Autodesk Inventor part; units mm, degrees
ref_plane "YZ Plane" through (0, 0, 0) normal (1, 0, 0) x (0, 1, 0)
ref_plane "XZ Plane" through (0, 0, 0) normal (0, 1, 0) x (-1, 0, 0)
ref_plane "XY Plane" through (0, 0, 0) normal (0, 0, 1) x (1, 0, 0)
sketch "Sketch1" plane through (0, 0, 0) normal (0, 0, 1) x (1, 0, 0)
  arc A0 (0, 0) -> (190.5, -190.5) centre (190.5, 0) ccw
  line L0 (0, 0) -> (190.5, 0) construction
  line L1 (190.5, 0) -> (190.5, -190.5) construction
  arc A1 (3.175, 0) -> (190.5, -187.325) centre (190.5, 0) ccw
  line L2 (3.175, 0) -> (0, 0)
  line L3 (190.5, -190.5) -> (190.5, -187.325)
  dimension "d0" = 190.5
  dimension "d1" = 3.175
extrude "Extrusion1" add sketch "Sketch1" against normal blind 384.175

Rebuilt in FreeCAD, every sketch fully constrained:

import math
import FreeCAD as App
import Part
import Sketcher
from FreeCAD import Vector
Q = App.Units.Quantity

doc = App.newDocument("Part")
body = doc.addObject("PartDesign::Body", "Body")

# Sketch on XY plane
sketch1 = doc.addObject("Sketcher::SketchObject", "Sketch")
body.addObject(sketch1)
sketch1.AttachmentSupport = (doc.XY_Plane, [""])
sketch1.MapMode = "FlatFace"
sketch1.addGeometry(Part.LineSegment(Vector(3.2, 0, 0), Vector(0, 0, 0)), False)
sketch1.addGeometry(Part.ArcOfCircle(Part.Circle(Vector(190.5, 0, 0), Vector(0, 0, 1), 190.5), math.radians(180), math.radians(270)), False)
sketch1.addGeometry(Part.LineSegment(Vector(190.5, -190.5, 0), Vector(190.5, -187.3, 0)), False)
sketch1.addGeometry(Part.ArcOfCircle(Part.Circle(Vector(190.5, 0, 0), Vector(0, 0, 1), 187.3), math.radians(180), math.radians(270)), False)
sketch1.addConstraint(Sketcher.Constraint("Coincident", 0, 2, 1, 1))
sketch1.addConstraint(Sketcher.Constraint("Coincident", 1, 2, 2, 1))
sketch1.addConstraint(Sketcher.Constraint("Coincident", 2, 2, 3, 2))
sketch1.addConstraint(Sketcher.Constraint("Coincident", 3, 1, 0, 1))
sketch1.addConstraint(Sketcher.Constraint("Horizontal", 0))
sketch1.addConstraint(Sketcher.Constraint("Vertical", 2))
sketch1.addConstraint(Sketcher.Constraint("Coincident", 0, 2, -1, 1))
sketch1.addConstraint(Sketcher.Constraint("Coincident", 3, 3, 1, 3))
sketch1.addConstraint(Sketcher.Constraint("PointOnObject", 1, 3, -1))
sketch1.addConstraint(Sketcher.Constraint("Vertical", 3, 3, 1, 2))
sketch1.addConstraint(Sketcher.Constraint("Radius", 1, Q("7.5 in")))
sketch1.addConstraint(Sketcher.Constraint("DistanceX", 0, 2, 0, 1, Q("0.125 in")))
pad1 = doc.addObject("PartDesign::Pad", "Pad")
body.addObject(pad1)
pad1.Profile = sketch1
pad1.Length = Q("15.125 in")
pad1.Reversed = True

doc.recompute()
